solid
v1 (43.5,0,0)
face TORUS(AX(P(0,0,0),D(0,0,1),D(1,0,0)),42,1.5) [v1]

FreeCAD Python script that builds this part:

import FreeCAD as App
import Part
import Sketcher

V = App.Vector

doc = App.newDocument("Part")
body = doc.addObject("PartDesign::Body", "Body")

# Sketch on YZ plane
sketch1 = body.newObject("Sketcher::SketchObject", "Sketch")
sketch1.AttachmentSupport = (doc.getObject("YZ_Plane"), [""])
sketch1.MapMode = "FlatFace"
sketch1.addGeometry(Part.Circle(V(42, 0, 0), V(0, 0, 1), 1.5), False)
sketch1.addConstraint([
    Sketcher.Constraint("PointOnObject", 0, 3, -1),
    Sketcher.Constraint("Diameter", 0, 3.0),
    Sketcher.Constraint("DistanceX", -1, 1, 0, 3, 42.0),
])
revolution = body.newObject("PartDesign::Revolution", "Revolution")
revolution.Profile = sketch1
revolution.ReferenceAxis = (sketch1, ["V_Axis"])
revolution.Angle = 360

doc.recompute()
